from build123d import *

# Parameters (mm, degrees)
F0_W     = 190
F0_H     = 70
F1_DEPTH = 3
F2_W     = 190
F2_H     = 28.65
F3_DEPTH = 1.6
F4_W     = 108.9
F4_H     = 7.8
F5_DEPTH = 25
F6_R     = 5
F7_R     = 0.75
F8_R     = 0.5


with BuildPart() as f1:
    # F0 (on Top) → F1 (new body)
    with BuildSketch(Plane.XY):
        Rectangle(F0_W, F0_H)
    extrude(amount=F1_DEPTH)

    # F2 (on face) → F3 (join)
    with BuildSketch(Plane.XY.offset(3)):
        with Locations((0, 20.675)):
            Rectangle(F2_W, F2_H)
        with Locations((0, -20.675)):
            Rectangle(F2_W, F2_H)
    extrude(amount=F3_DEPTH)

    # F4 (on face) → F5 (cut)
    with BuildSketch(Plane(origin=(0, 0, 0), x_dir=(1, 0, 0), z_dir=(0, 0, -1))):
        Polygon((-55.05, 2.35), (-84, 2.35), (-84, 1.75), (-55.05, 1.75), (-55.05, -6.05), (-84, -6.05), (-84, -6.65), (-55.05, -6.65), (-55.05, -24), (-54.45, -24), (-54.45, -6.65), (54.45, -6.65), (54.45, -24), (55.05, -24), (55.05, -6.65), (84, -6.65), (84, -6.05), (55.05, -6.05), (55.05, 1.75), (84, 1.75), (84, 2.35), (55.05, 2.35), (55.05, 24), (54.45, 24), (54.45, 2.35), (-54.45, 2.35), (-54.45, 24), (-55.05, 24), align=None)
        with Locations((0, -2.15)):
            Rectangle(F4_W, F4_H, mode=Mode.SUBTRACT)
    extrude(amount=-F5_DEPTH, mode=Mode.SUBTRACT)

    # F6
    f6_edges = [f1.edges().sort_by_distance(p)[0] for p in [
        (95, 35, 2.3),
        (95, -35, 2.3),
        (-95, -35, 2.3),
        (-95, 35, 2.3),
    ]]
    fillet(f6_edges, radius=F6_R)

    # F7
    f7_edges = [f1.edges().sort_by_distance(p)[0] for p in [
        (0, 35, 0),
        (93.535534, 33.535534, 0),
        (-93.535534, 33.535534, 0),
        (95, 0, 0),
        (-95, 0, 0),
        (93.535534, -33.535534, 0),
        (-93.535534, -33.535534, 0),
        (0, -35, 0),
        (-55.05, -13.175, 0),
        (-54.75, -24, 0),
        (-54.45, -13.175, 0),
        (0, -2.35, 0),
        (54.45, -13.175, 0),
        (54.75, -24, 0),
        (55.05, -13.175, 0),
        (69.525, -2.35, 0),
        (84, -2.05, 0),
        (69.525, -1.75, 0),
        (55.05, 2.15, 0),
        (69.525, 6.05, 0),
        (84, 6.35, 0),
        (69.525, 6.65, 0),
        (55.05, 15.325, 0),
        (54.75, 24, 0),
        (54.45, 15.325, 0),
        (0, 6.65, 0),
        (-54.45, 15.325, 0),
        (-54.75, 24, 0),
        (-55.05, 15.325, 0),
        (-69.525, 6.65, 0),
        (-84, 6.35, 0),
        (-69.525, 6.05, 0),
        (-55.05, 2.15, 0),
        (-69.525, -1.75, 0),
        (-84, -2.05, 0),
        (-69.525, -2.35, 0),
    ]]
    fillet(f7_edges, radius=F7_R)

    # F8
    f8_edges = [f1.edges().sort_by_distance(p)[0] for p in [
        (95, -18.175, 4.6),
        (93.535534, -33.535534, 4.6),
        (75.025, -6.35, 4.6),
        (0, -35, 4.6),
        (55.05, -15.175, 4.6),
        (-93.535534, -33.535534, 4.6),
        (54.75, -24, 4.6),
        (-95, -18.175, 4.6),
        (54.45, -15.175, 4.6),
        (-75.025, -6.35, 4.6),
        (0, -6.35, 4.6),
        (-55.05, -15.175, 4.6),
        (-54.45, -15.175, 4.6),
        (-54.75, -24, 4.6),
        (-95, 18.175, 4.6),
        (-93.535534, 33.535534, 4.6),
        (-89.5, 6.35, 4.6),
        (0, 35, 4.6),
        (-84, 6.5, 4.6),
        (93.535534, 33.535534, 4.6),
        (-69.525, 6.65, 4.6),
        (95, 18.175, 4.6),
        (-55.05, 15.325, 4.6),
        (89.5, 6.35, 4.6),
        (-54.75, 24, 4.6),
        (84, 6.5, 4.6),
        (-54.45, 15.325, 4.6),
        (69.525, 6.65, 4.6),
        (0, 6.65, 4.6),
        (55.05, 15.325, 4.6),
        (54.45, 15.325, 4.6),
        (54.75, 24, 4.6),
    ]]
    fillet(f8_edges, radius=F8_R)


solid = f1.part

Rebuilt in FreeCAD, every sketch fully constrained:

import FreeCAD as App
import Part
import Sketcher

V = App.Vector


def edges_at(feature, points):
    """Names of the edges that pass closest to the given points."""
    edges = feature.Shape.Edges
    near = lambda p: min(range(len(edges)), key=lambda i: edges[i].distToShape(Part.Vertex(*p))[0])
    return sorted({f"Edge{near(p) + 1}" for p in points})


def add_polygon(sketch, points):
    """Adds a closed chain of lines whose ends are joined by coincident constraints."""
    first, n = sketch.GeometryCount, len(points)
    for a, b in zip(points, points[1:] + points[:1]):
        sketch.addGeometry(Part.LineSegment(App.Vector(*a, 0), App.Vector(*b, 0)), False)
    for i in range(n):
        sketch.addConstraint(Sketcher.Constraint("Coincident", first + i, 2, first + (i + 1) % n, 1))

doc = App.newDocument("Part")
body = doc.addObject("PartDesign::Body", "Body")
body.AllowCompound = True

sketch1 = body.newObject("Sketcher::SketchObject", "Sketch")
sketch1.AttachmentSupport = (doc.getObject("XY_Plane"), [""])
sketch1.MapMode = "FlatFace"
add_polygon(sketch1, [(-95, 35), (-95, -35), (95, -35), (95, 35)])
sketch1.addConstraint(Sketcher.Constraint("Vertical", 0))
sketch1.addConstraint(Sketcher.Constraint("Horizontal", 1))
sketch1.addConstraint(Sketcher.Constraint("Vertical", 2))
sketch1.addConstraint(Sketcher.Constraint("Horizontal", 3))
sketch1.addConstraint(Sketcher.Constraint("Symmetric", 0, 2, 2, 2, -1, 1))
sketch1.addConstraint(Sketcher.Constraint("DistanceX", 1, 1, 1, 2, 190.0))
sketch1.addConstraint(Sketcher.Constraint("DistanceY", 0, 2, 0, 1, 70.0))
pad1 = body.newObject("PartDesign::Pad", "Pad")
pad1.Profile = sketch1
pad1.Length = 3

sketch2 = body.newObject("Sketcher::SketchObject", "Sketch001")
sketch2.AttachmentSupport = (doc.getObject("XY_Plane"), [""])
sketch2.MapMode = "FlatFace"
sketch2.AttachmentOffset = App.Placement(V(0, 0, 3), App.Rotation())
add_polygon(sketch2, [(-95, 35), (-95, 6), (95, 6), (95, 35)])
add_polygon(sketch2, [(-95, -6), (-95, -35), (95, -35), (95, -6)])
sketch2.addConstraint(Sketcher.Constraint("Vertical", 0))
sketch2.addConstraint(Sketcher.Constraint("Horizontal", 1))
sketch2.addConstraint(Sketcher.Constraint("Vertical", 2))
sketch2.addConstraint(Sketcher.Constraint("Horizontal", 3))
sketch2.addConstraint(Sketcher.Constraint("Vertical", 4))
sketch2.addConstraint(Sketcher.Constraint("Horizontal", 5))
sketch2.addConstraint(Sketcher.Constraint("Vertical", 6))
sketch2.addConstraint(Sketcher.Constraint("Horizontal", 7))
sketch2.addConstraint(Sketcher.Constraint("Symmetric", 2, 2, 4, 2, -1, 1))
sketch2.addConstraint(Sketcher.Constraint("Symmetric", 0, 2, 6, 2, -1, 1))
sketch2.addConstraint(Sketcher.Constraint("Vertical", 3, 2, 4, 2))
sketch2.addConstraint(Sketcher.Constraint("DistanceX", 1, 1, 1, 2, 190.0))
sketch2.addConstraint(Sketcher.Constraint("DistanceY", -1, 1, 2, 2, 35.0))
sketch2.addConstraint(Sketcher.Constraint("DistanceY", 0, 2, 0, 1, 28.65))
pad2 = body.newObject("PartDesign::Pad", "Pad001")
pad2.Profile = sketch2
pad2.Length = 1.6

sketch3 = body.newObject("Sketcher::SketchObject", "Sketch002")
sketch3.AttachmentSupport = (doc.getObject("XY_Plane"), [""])
sketch3.MapMode = "FlatFace"
add_polygon(sketch3, [(-55, -2.4), (-84, -2.4), (-84, -1.8), (-55, -1.8), (-55, 6), (-84, 6), (-84, 6.7), (-55, 6.7), (-55, 24), (-54.5, 24), (-54.5, 6.7), (54.5, 6.7), (54.5, 24), (55, 24), (55, 6.7), (84, 6.7), (84, 6), (55, 6), (55, -1.8), (84, -1.8), (84, -2.4), (55, -2.4), (55, -24), (54.5, -24), (54.5, -2.4), (-54.5, -2.4), (-54.5, -24), (-55, -24)])
add_polygon(sketch3, [(54.5, 6), (-54.5, 6), (-54.5, -1.8), (54.5, -1.8)])
sketch3.addConstraint(Sketcher.Constraint("Horizontal", 0))
sketch3.addConstraint(Sketcher.Constraint("Vertical", 1))
sketch3.addConstraint(Sketcher.Constraint("Horizontal", 2))
sketch3.addConstraint(Sketcher.Constraint("Vertical", 3))
sketch3.addConstraint(Sketcher.Constraint("Horizontal", 4))
sketch3.addConstraint(Sketcher.Constraint("Vertical", 5))
sketch3.addConstraint(Sketcher.Constraint("Horizontal", 6))
sketch3.addConstraint(Sketcher.Constraint("Vertical", 7))
sketch3.addConstraint(Sketcher.Constraint("Horizontal", 8))
sketch3.addConstraint(Sketcher.Constraint("Vertical", 9))
sketch3.addConstraint(Sketcher.Constraint("Horizontal", 10))
sketch3.addConstraint(Sketcher.Constraint("Vertical", 11))
sketch3.addConstraint(Sketcher.Constraint("Horizontal", 12))
sketch3.addConstraint(Sketcher.Constraint("Vertical", 13))
sketch3.addConstraint(Sketcher.Constraint("Horizontal", 14))
sketch3.addConstraint(Sketcher.Constraint("Vertical", 15))
sketch3.addConstraint(Sketcher.Constraint("Horizontal", 16))
sketch3.addConstraint(Sketcher.Constraint("Vertical", 17))
sketch3.addConstraint(Sketcher.Constraint("Horizontal", 18))
sketch3.addConstraint(Sketcher.Constraint("Vertical", 19))
sketch3.addConstraint(Sketcher.Constraint("Horizontal", 20))
sketch3.addConstraint(Sketcher.Constraint("Vertical", 21))
sketch3.addConstraint(Sketcher.Constraint("Horizontal", 22))
sketch3.addConstraint(Sketcher.Constraint("Vertical", 23))
sketch3.addConstraint(Sketcher.Constraint("Horizontal", 24))
sketch3.addConstraint(Sketcher.Constraint("Vertical", 25))
sketch3.addConstraint(Sketcher.Constraint("Horizontal", 26))
sketch3.addConstraint(Sketcher.Constraint("Vertical", 27))
sketch3.addConstraint(Sketcher.Constraint("Horizontal", 28))
sketch3.addConstraint(Sketcher.Constraint("Vertical", 29))
sketch3.addConstraint(Sketcher.Constraint("Horizontal", 30))
sketch3.addConstraint(Sketcher.Constraint("Vertical", 31))
sketch3.addConstraint(Sketcher.Constraint("Symmetric", 7, 2, 21, 2, -1, 1))
sketch3.addConstraint(Sketcher.Constraint("Symmetric", 11, 2, 25, 2, -1, 1))
sketch3.addConstraint(Sketcher.Constraint("Symmetric", 8, 2, 11, 2, -2))
sketch3.addConstraint(Sketcher.Constraint("Symmetric", 6, 2, 13, 2, -2))
sketch3.addConstraint(Sketcher.Constraint("Symmetric", 4, 2, 15, 2, -2))
sketch3.addConstraint(Sketcher.Constraint("Symmetric", 2, 2, 17, 2, -2))
sketch3.addConstraint(Sketcher.Constraint("Symmetric", 0, 2, 19, 2, -2))
sketch3.addConstraint(Sketcher.Constraint("Horizontal", 6, 2, 9, 2))
sketch3.addConstraint(Sketcher.Constraint("Horizontal", 20, 2, 23, 2))
sketch3.addConstraint(Sketcher.Constraint("Horizontal", 16, 2, 28, 2))
sketch3.addConstraint(Sketcher.Constraint("Horizontal", 18, 2, 29, 2))
sketch3.addConstraint(Sketcher.Constraint("Vertical", 1, 2, 4, 2))
sketch3.addConstraint(Sketcher.Constraint("Vertical", 3, 2, 6, 2))
sketch3.addConstraint(Sketcher.Constraint("Vertical", 11, 2, 22, 2))
sketch3.addConstraint(Sketcher.Constraint("Vertical", 7, 2, 26, 2))
sketch3.addConstraint(Sketcher.Constraint("Vertical", 25, 2, 28, 2))
sketch3.addConstraint(Sketcher.Constraint("Vertical", 23, 2, 30, 2))
sketch3.addConstraint(Sketcher.Constraint("Equal", 26, 1))
sketch3.addConstraint(Sketcher.Constraint("Equal", 1, 5))
sketch3.addConstraint(Sketcher.Constraint("DistanceX", 8, 1, 8, 2, 0.6))
sketch3.addConstraint(Sketcher.Constraint("DistanceX", 10, 1, 10, 2, 108.9))
sketch3.addConstraint(Sketcher.Constraint("DistanceY", 3, 1, 3, 2, 7.8))
sketch3.addConstraint(Sketcher.Constraint("DistanceX", 0, 2, -1, 1, 84.0))
sketch3.addConstraint(Sketcher.Constraint("DistanceY", -1, 1, 7, 2, 24.0))
sketch3.addConstraint(Sketcher.Constraint("DistanceY", 7, 1, 7, 2, 17.35))
pocket1 = body.newObject("PartDesign::Pocket", "Pocket")
pocket1.Profile = sketch3
pocket1.Length = 25
pocket1.Reversed = True
doc.recompute()

fillet = body.newObject("PartDesign::Fillet", "Fillet")
fillet.Base = (pocket1, edges_at(pocket1, [
    (95, 35, 2.3),
    (95, -35, 2.3),
    (-95, -35, 2.3),
    (-95, 35, 2.3),
]))
fillet.Radius = 5
doc.recompute()

fillet2 = body.newObject("PartDesign::Fillet", "Fillet001")
fillet2.Base = (fillet, edges_at(fillet, [
    (0, 35, 0),
    (93.536, 33.536, 0),
    (-93.536, 33.536, 0),
    (95, 0, 0),
    (-95, 0, 0),
    (93.536, -33.536, 0),
    (-93.536, -33.536, 0),
    (0, -35, 0),
    (-55.05, -13.175, 0),
    (-54.75, -24, 0),
    (-54.45, -13.175, 0),
    (0, -2.35, 0),
    (54.45, -13.175, 0),
    (54.75, -24, 0),
    (55.05, -13.175, 0),
    (69.525, -2.35, 0),
    (84, -2.05, 0),
    (69.525, -1.75, 0),
    (55.05, 2.15, 0),
    (69.525, 6.05, 0),
    (84, 6.35, 0),
    (69.525, 6.65, 0),
    (55.05, 15.325, 0),
    (54.75, 24, 0),
    (54.45, 15.325, 0),
    (0, 6.65, 0),
    (-54.45, 15.325, 0),
    (-54.75, 24, 0),
    (-55.05, 15.325, 0),
    (-69.525, 6.65, 0),
    (-84, 6.35, 0),
    (-69.525, 6.05, 0),
    (-55.05, 2.15, 0),
    (-69.525, -1.75, 0),
    (-84, -2.05, 0),
    (-69.525, -2.35, 0),
]))
fillet2.Radius = 0.75
doc.recompute()

fillet3 = body.newObject("PartDesign::Fillet", "Fillet002")
fillet3.Base = (fillet2, edges_at(fillet2, [
    (95, -18.175, 4.6),
    (93.536, -33.536, 4.6),
    (75.025, -6.35, 4.6),
    (0, -35, 4.6),
    (55.05, -15.175, 4.6),
    (-93.536, -33.536, 4.6),
    (54.75, -24, 4.6),
    (-95, -18.175, 4.6),
    (54.45, -15.175, 4.6),
    (-75.025, -6.35, 4.6),
    (0, -6.35, 4.6),
    (-55.05, -15.175, 4.6),
    (-54.45, -15.175, 4.6),
    (-54.75, -24, 4.6),
    (-95, 18.175, 4.6),
    (-93.536, 33.536, 4.6),
    (-89.5, 6.35, 4.6),
    (0, 35, 4.6),
    (-84, 6.5, 4.6),
    (93.536, 33.536, 4.6),
    (-69.525, 6.65, 4.6),
    (95, 18.175, 4.6),
    (-55.05, 15.325, 4.6),
    (89.5, 6.35, 4.6),
    (-54.75, 24, 4.6),
    (84, 6.5, 4.6),
    (-54.45, 15.325, 4.6),
    (69.525, 6.65, 4.6),
    (0, 6.65, 4.6),
    (55.05, 15.325, 4.6),
    (54.45, 15.325, 4.6),
    (54.75, 24, 4.6),
]))
fillet3.Radius = 0.5

doc.recompute()
